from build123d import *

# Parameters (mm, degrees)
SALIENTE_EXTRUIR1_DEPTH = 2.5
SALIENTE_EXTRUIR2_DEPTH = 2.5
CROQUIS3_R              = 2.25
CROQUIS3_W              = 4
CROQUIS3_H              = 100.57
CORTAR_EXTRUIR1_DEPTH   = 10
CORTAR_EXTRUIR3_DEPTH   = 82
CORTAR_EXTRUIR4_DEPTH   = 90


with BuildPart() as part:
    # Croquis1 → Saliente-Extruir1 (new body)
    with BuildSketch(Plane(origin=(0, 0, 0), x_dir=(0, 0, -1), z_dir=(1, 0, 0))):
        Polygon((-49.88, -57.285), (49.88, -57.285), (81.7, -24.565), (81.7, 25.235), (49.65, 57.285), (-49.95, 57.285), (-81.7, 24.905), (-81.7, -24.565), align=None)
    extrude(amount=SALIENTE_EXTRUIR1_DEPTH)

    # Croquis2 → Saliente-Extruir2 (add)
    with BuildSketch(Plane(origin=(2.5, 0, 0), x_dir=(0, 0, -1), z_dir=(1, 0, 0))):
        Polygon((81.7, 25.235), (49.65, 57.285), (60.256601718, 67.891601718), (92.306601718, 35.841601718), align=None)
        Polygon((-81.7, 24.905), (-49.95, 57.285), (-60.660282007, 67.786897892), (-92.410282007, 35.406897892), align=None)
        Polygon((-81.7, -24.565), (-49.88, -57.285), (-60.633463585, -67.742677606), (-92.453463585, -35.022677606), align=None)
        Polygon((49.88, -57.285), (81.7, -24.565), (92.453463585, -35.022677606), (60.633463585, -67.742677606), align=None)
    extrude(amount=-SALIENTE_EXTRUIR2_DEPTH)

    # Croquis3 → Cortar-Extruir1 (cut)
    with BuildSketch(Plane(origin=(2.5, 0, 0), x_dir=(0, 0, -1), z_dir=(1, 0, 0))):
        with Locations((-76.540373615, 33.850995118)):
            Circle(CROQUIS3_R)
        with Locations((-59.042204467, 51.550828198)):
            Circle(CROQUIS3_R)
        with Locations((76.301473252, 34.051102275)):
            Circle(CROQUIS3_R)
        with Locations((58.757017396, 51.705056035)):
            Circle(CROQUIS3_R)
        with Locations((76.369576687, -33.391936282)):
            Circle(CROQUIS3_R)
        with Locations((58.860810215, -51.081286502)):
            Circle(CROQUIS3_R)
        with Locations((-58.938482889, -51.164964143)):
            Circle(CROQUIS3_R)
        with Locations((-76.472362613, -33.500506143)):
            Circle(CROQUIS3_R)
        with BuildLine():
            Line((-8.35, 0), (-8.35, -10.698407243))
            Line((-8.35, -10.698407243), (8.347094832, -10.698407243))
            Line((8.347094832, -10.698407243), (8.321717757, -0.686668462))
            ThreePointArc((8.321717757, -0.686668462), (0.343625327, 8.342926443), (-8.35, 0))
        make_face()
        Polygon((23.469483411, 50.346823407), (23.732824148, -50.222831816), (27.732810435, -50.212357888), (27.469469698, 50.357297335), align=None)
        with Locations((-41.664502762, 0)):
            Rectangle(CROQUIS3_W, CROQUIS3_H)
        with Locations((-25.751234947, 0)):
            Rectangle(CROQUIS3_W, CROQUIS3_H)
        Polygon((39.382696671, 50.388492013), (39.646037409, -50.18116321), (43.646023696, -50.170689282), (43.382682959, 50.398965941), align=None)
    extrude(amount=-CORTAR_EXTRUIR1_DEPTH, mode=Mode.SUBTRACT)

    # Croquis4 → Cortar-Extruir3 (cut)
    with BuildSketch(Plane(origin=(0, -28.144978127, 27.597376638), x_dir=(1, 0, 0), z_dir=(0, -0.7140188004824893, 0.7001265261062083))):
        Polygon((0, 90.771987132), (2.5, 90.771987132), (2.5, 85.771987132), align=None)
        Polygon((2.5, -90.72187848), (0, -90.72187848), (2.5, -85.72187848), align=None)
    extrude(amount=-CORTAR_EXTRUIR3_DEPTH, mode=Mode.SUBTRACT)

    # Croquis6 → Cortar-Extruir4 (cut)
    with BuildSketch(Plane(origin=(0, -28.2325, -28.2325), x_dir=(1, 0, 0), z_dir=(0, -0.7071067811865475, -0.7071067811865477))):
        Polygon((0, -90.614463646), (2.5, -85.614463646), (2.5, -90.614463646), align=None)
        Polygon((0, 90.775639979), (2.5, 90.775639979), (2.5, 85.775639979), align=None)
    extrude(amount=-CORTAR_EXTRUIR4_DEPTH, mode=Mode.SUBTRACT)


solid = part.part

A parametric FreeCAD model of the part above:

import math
import FreeCAD as App
import Part
import Sketcher
from FreeCAD import Vector
Q = App.Units.Quantity


def add_polygon(sketch, points):
    """Adds a closed chain of lines whose ends are joined by coincident constraints."""
    first, n = sketch.GeometryCount, len(points)
    for a, b in zip(points, points[1:] + points[:1]):
        sketch.addGeometry(Part.LineSegment(App.Vector(*a, 0), App.Vector(*b, 0)), False)
    for i in range(n):
        sketch.addConstraint(Sketcher.Constraint("Coincident", first + i, 2, first + (i + 1) % n, 1))

doc = App.newDocument("Part")
body = doc.addObject("PartDesign::Body", "Body")

sketch1 = doc.addObject("Sketcher::SketchObject", "Sketch")
body.addObject(sketch1)
sketch1.AttachmentSupport = (doc.YZ_Plane, [""])
sketch1.MapMode = "FlatFace"
add_polygon(sketch1, [(-57, 50), (-57, -50), (-25, -82), (25, -82), (57, -50), (57, 50), (25, 82), (-25, 82)])
sketch1.addConstraint(Sketcher.Constraint("Vertical", 0))
sketch1.addConstraint(Sketcher.Constraint("Horizontal", 2))
sketch1.addConstraint(Sketcher.Constraint("Vertical", 4))
sketch1.addConstraint(Sketcher.Constraint("Horizontal", 6))
sketch1.addConstraint(Sketcher.Constraint("Symmetric", 1, 2, 6, 2, -1))
sketch1.addConstraint(Sketcher.Constraint("Equal", 1, 7))
sketch1.addConstraint(Sketcher.Constraint("Angle", 3, Q("45 deg")))
sketch1.addConstraint(Sketcher.Constraint("DistanceX", 2, 1, 2, 2, 49.8))
sketch1.addConstraint(Sketcher.Constraint("DistanceY", 4, 1, 4, 2, 99.6))
sketch1.addConstraint(Sketcher.Constraint("DistanceX", 6, 2, 6, 1, 49.47))
sketch1.addConstraint(Sketcher.Constraint("DistanceY", 0, 2, 0, 1, 99.76))
sketch1.addConstraint(Sketcher.Constraint("DistanceY", 1, 2, -1, 1, 81.7))
sketch1.addConstraint(Sketcher.Constraint("DistanceY", 3, 2, -1, 1, 49.65))
sketch1.addConstraint(Sketcher.Constraint("DistanceX", 0, 2, 1, 2, 32.72))
sketch1.addConstraint(Sketcher.Constraint("DistanceX", 0, 2, -1, 1, 57.285))
pad1 = doc.addObject("PartDesign::Pad", "Pad")
body.addObject(pad1)
pad1.Profile = sketch1
pad1.Length = 2.5

sketch2 = doc.addObject("Sketcher::SketchObject", "Sketch001")
body.addObject(sketch2)
sketch2.AttachmentSupport = (doc.YZ_Plane, [""])
sketch2.MapMode = "FlatFace"
sketch2.AttachmentOffset = App.Placement(Vector(0, 0, 2.5), App.Rotation())
add_polygon(sketch2, [(57, -50), (25, -82), (36, -92), (68, -60)])
add_polygon(sketch2, [(25, 82), (57, 50), (68, 61), (35, 92)])
add_polygon(sketch2, [(-57, 50), (-25, 82), (-35, 92), (-68, 61)])
add_polygon(sketch2, [(-25, -82), (-57, -50), (-68, -61), (-35, -92)])
sketch2.addConstraint(Sketcher.Constraint("Symmetric", 11, 2, 12, 2, -1))
sketch2.addConstraint(Sketcher.Constraint("Symmetric", 10, 2, 13, 2, -1))
sketch2.addConstraint(Sketcher.Constraint("Symmetric", 9, 2, 14, 2, -1))
sketch2.addConstraint(Sketcher.Constraint("Symmetric", 8, 2, 15, 2, -1))
sketch2.addConstraint(Sketcher.Constraint("Perpendicular", 0, 1))
sketch2.addConstraint(Sketcher.Constraint("Perpendicular", 1, 2))
sketch2.addConstraint(Sketcher.Constraint("Perpendicular", 2, 3))
sketch2.addConstraint(Sketcher.Constraint("Perpendicular", 4, 5))
sketch2.addConstraint(Sketcher.Constraint("Perpendicular", 5, 6))
sketch2.addConstraint(Sketcher.Constraint("Perpendicular", 6, 7))
sketch2.addConstraint(Sketcher.Constraint("Perpendicular", 8, 9))
sketch2.addConstraint(Sketcher.Constraint("Perpendicular", 9, 10))
sketch2.addConstraint(Sketcher.Constraint("Perpendicular", 10, 11))
sketch2.addConstraint(Sketcher.Constraint("Horizontal", 7, 2, 8, 2))
sketch2.addConstraint(Sketcher.Constraint("Horizontal", 0, 2, 15, 2))
sketch2.addConstraint(Sketcher.Constraint("Vertical", 3, 2, 4, 2))
sketch2.addConstraint(Sketcher.Constraint("Equal", 3, 5))
sketch2.addConstraint(Sketcher.Constraint("Equal", 7, 9))
sketch2.addConstraint(Sketcher.Constraint("Angle", 0, Q("-135 deg")))
sketch2.addConstraint(Sketcher.Constraint("Distance", 1, 15.0))
sketch2.addConstraint(Sketcher.Constraint("DistanceY", 0, 2, -1, 1, 81.7))
sketch2.addConstraint(Sketcher.Constraint("DistanceY", 3, 2, 4, 2, 99.6))
sketch2.addConstraint(Sketcher.Constraint("DistanceX", 15, 2, 0, 2, 49.8))
sketch2.addConstraint(Sketcher.Constraint("DistanceY", 3, 2, -1, 1, 49.65))
sketch2.addConstraint(Sketcher.Constraint("DistanceY", -1, 1, 11, 2, 49.88))
sketch2.addConstraint(Sketcher.Constraint("DistanceX", 6, 2, 5, 2, 32.38))
sketch2.addConstraint(Sketcher.Constraint("DistanceX", 10, 2, 9, 2, 32.72))
sketch2.addConstraint(Sketcher.Constraint("DistanceX", -1, 1, 0, 2, 25.235))
pad2 = doc.addObject("PartDesign::Pad", "Pad001")
body.addObject(pad2)
pad2.Profile = sketch2
pad2.Length = 2.5
pad2.Reversed = True

sketch3 = doc.addObject("Sketcher::SketchObject", "Sketch002")
body.addObject(sketch3)
sketch3.AttachmentSupport = (doc.YZ_Plane, [""])
sketch3.MapMode = "FlatFace"
sketch3.AttachmentOffset = App.Placement(Vector(0, 0, 2.5), App.Rotation())
sketch3.addGeometry(Part.Circle(Vector(33.9, 76.5, 0), Vector(0, 0, 1), 2.2), False)
sketch3.addGeometry(Part.Circle(Vector(51.6, 59, 0), Vector(0, 0, 1), 2.2), False)
sketch3.addGeometry(Part.Circle(Vector(34.1, -76.3, 0), Vector(0, 0, 1), 2.2), False)
sketch3.addGeometry(Part.Circle(Vector(51.7, -58.8, 0), Vector(0, 0, 1), 2.2), False)
sketch3.addGeometry(Part.Circle(Vector(-33.4, -76.4, 0), Vector(0, 0, 1), 2.2), False)
sketch3.addGeometry(Part.Circle(Vector(-51.1, -58.9, 0), Vector(0, 0, 1), 2.2), False)
sketch3.addGeometry(Part.Circle(Vector(-51.2, 58.9, 0), Vector(0, 0, 1), 2.2), False)
sketch3.addGeometry(Part.Circle(Vector(-33.5, 76.5, 0), Vector(0, 0, 1), 2.2), False)
sketch3.addGeometry(Part.LineSegment(Vector(0, 8.3, 0), Vector(-10.7, 8.3, 0)), False)
sketch3.addGeometry(Part.LineSegment(Vector(-10.7, 8.3, 0), Vector(-10.7, -8.3, 0)), False)
sketch3.addGeometry(Part.LineSegment(Vector(-10.7, -8.3, 0), Vector(-0.7, -8.3, 0)), False)
sketch3.addGeometry(Part.ArcOfCircle(Part.Circle(Vector(0, 0, 0), Vector(0, 0, 1), 8.3), math.radians(-95), math.radians(90)), False)
add_polygon(sketch3, [(50.3, -23.5), (-50.2, -23.7), (-50.2, -27.7), (50.4, -27.5)])
add_polygon(sketch3, [(50.3, 43.7), (-50.3, 43.7), (-50.3, 39.7), (50.3, 39.7)])
add_polygon(sketch3, [(50.3, 27.8), (-50.3, 27.8), (-50.3, 23.8), (50.3, 23.8)])
add_polygon(sketch3, [(50.4, -39.4), (-50.2, -39.6), (-50.2, -43.6), (50.4, -43.4)])
sketch3.addConstraint(Sketcher.Constraint("Coincident", 8, 2, 9, 1))
sketch3.addConstraint(Sketcher.Constraint("Coincident", 9, 2, 10, 1))
sketch3.addConstraint(Sketcher.Constraint("Coincident", 10, 2, 11, 1))
sketch3.addConstraint(Sketcher.Constraint("Tangent", 11, 2, 8, 1))
sketch3.addConstraint(Sketcher.Constraint("Horizontal", 8))
sketch3.addConstraint(Sketcher.Constraint("Vertical", 9))
sketch3.addConstraint(Sketcher.Constraint("Horizontal", 16))
sketch3.addConstraint(Sketcher.Constraint("Vertical", 17))
sketch3.addConstraint(Sketcher.Constraint("Horizontal", 18))
sketch3.addConstraint(Sketcher.Constraint("Vertical", 19))
sketch3.addConstraint(Sketcher.Constraint("Horizontal", 20))
sketch3.addConstraint(Sketcher.Constraint("Vertical", 21))
sketch3.addConstraint(Sketcher.Constraint("Horizontal", 22))
sketch3.addConstraint(Sketcher.Constraint("Vertical", 23))
sketch3.addConstraint(Sketcher.Constraint("Coincident", 11, 3, -1, 1))
sketch3.addConstraint(Sketcher.Constraint("Equal", 0, 1))
sketch3.addConstraint(Sketcher.Constraint("Equal", 1, 2))
sketch3.addConstraint(Sketcher.Constraint("Equal", 2, 3))
sketch3.addConstraint(Sketcher.Constraint("Equal", 3, 4))
sketch3.addConstraint(Sketcher.Constraint("Equal", 4, 5))
sketch3.addConstraint(Sketcher.Constraint("Equal", 5, 6))
sketch3.addConstraint(Sketcher.Constraint("Equal", 6, 7))
sketch3.addConstraint(Sketcher.Constraint("Perpendicular", 12, 13))
sketch3.addConstraint(Sketcher.Constraint("Perpendicular", 13, 14))
sketch3.addConstraint(Sketcher.Constraint("Perpendicular", 14, 15))
sketch3.addConstraint(Sketcher.Constraint("Perpendicular", 15, 24))
sketch3.addConstraint(Sketcher.Constraint("Perpendicular", 24, 25))
sketch3.addConstraint(Sketcher.Constraint("Perpendicular", 25, 26))
sketch3.addConstraint(Sketcher.Constraint("Perpendicular", 26, 27))
sketch3.addConstraint(Sketcher.Constraint("Vertical", 17, 2, 20, 2))
sketch3.addConstraint(Sketcher.Constraint("Vertical", 19, 2, 22, 2))
sketch3.addConstraint(Sketcher.Constraint("Equal", 19, 21))
sketch3.addConstraint(Sketcher.Constraint("Equal", 14, 24))
sketch3.addConstraint(Sketcher.Constraint("Equal", 15, 25))
sketch3.addConstraint(Sketcher.Constraint("Diameter", 0, 4.5))
sketch3.addConstraint(Sketcher.Constraint("DistanceY", 17, 2, 17, 1, 4.0))
sketch3.addConstraint(Sketcher.Constraint("Radius", 11, 8.35))
sketch3.addConstraint(Sketcher.Constraint("Distance", 13, 4.0))
sketch3.addConstraint(Sketcher.Constraint("DistanceX", 16, 2, 16, 1, 100.57))
sketch3.addConstraint(Sketcher.Constraint("Distance", 12, 100.57))
sketch3.addConstraint(Sketcher.Constraint("DistanceX", 16, 2, -1, 1, 50.285))
sketch3.addConstraint(Sketcher.Constraint("DistanceY", 5, 3, 13, 2, 31.128))
sketch3.addConstraint(Sketcher.Constraint("DistanceY", 3, 3, 6, 3, 117.6955))
sketch3.addConstraint(Sketcher.Constraint("DistanceX", 7, 3, 0, 3, 67.351501))
sketch3.addConstraint(Sketcher.Constraint("DistanceX", 7, 3, 8, 2, 22.802099))
sketch3.addConstraint(Sketcher.Constraint("DistanceY", 3, 3, 10, 2, 50.4353))
sketch3.addConstraint(Sketcher.Constraint("DistanceY", 18, 2, 1, 3, 19.377702))
sketch3.addConstraint(Sketcher.Constraint("DistanceY", 25, 2, 12, 2, 19.9132))
sketch3.addConstraint(Sketcher.Constraint("Distance", 10, 10.011771))
sketch3.addConstraint(Sketcher.Constraint("DistanceX", 8, 2, 8, 1, 10.698407))
sketch3.addConstraint(Sketcher.Constraint("DistanceY", 9, 2, 9, 1, 16.697095))
sketch3.addConstraint(Sketcher.Constraint("DistanceX", -1, 1, 1, 3, 51.550828))
sketch3.addConstraint(Sketcher.Constraint("DistanceY", 5, 3, -1, 1, 58.86081))
sketch3.addConstraint(Sketcher.Constraint("DistanceX", 12, 2, -1, 1, 50.222832))
sketch3.addConstraint(Sketcher.Constraint("DistanceY", 14, 2, -1, 1, 27.46947))
sketch3.addConstraint(Sketcher.Constraint("DistanceX", 25, 2, -1, 1, 50.170689))
sketch3.addConstraint(Sketcher.Constraint("DistanceY", 1, 3, 0, 3, 17.498169))
sketch3.addConstraint(Sketcher.Constraint("DistanceY", 3, 3, 1, 3, 117.799222))
sketch3.addConstraint(Sketcher.Constraint("DistanceX", 0, 3, 3, 3, 17.854061))
sketch3.addConstraint(Sketcher.Constraint("DistanceX", 4, 3, 2, 3, 67.443039))
sketch3.addConstraint(Sketcher.Constraint("DistanceY", 4, 3, 3, 3, 17.612559))
sketch3.addConstraint(Sketcher.Constraint("DistanceX", 4, 3, 0, 3, 67.242931))
sketch3.addConstraint(Sketcher.Constraint("DistanceX", 5, 3, 4, 3, 17.68935))
sketch3.addConstraint(Sketcher.Constraint("DistanceX", 6, 3, 0, 3, 85.015959))
sketch3.addConstraint(Sketcher.Constraint("DistanceY", 6, 3, 7, 3, 17.53388))
sketch3.addConstraint(Sketcher.Constraint("DistanceY", 2, 3, 15, 2, 52.83199))
sketch3.addConstraint(Sketcher.Constraint("DistanceY", 12, 2, 20, 2, 51.484059))
pocket1 = doc.addObject("PartDesign::Pocket", "Pocket")
body.addObject(pocket1)
pocket1.Profile = sketch3
pocket1.Length = 10

sketch4 = doc.addObject("Sketcher::SketchObject", "Sketch003")
body.addObject(sketch4)
sketch4.Placement = App.Placement(Vector(0, -28.144978, 27.597377), App.Rotation(Vector(1, 0, 0), Vector(0, 0.700126526, 0.7140188), Vector(0, -0.7140188, 0.700126526), "ZXY"))
add_polygon(sketch4, [(2.5, 90.8), (0, 90.8), (2.5, 85.8)])
add_polygon(sketch4, [(0, -90.7), (2.5, -90.7), (2.5, -85.7)])
sketch4.addConstraint(Sketcher.Constraint("Horizontal", 0))
sketch4.addConstraint(Sketcher.Constraint("Vertical", 2))
sketch4.addConstraint(Sketcher.Constraint("Horizontal", 3))
sketch4.addConstraint(Sketcher.Constraint("Vertical", 4))
sketch4.addConstraint(Sketcher.Constraint("PointOnObject", 0, 2, -2))
sketch4.addConstraint(Sketcher.Constraint("PointOnObject", 5, 2, -2))
sketch4.addConstraint(Sketcher.Constraint("Vertical", 2, 2, 3, 2))
sketch4.addConstraint(Sketcher.Constraint("Equal", 2, 4))
sketch4.addConstraint(Sketcher.Constraint("DistanceY", 2, 1, 2, 2, 5.0))
sketch4.addConstraint(Sketcher.Constraint("DistanceX", 0, 2, 0, 1, 2.5))
sketch4.addConstraint(Sketcher.Constraint("DistanceY", 3, 2, -1, 1, 90.721878))
sketch4.addConstraint(Sketcher.Constraint("DistanceY", -1, 1, 0, 2, 90.771987))
pocket2 = doc.addObject("PartDesign::Pocket", "Pocket001")
body.addObject(pocket2)
pocket2.Profile = sketch4
pocket2.Length = 82

sketch5 = doc.addObject("Sketcher::SketchObject", "Sketch004")
body.addObject(sketch5)
sketch5.Placement = App.Placement(Vector(0, -28.2325, -28.2325), App.Rotation(Vector(1, 0, 0), Vector(0, -0.707106781, 0.707106781), Vector(0, -0.707106781, -0.707106781), "ZXY"))
add_polygon(sketch5, [(2.5, -85.6), (0, -90.6), (2.5, -90.6)])
add_polygon(sketch5, [(2.5, 90.8), (0, 90.8), (2.5, 85.8)])
sketch5.addConstraint(Sketcher.Constraint("Horizontal", 1))
sketch5.addConstraint(Sketcher.Constraint("Vertical", 2))
sketch5.addConstraint(Sketcher.Constraint("Horizontal", 3))
sketch5.addConstraint(Sketcher.Constraint("Vertical", 5))
sketch5.addConstraint(Sketcher.Constraint("PointOnObject", 0, 2, -2))
sketch5.addConstraint(Sketcher.Constraint("PointOnObject", 3, 2, -2))
sketch5.addConstraint(Sketcher.Constraint("Vertical", 2, 2, 4, 2))
sketch5.addConstraint(Sketcher.Constraint("Equal", 2, 5))
sketch5.addConstraint(Sketcher.Constraint("DistanceY", 2, 1, 2, 2, 5.0))
sketch5.addConstraint(Sketcher.Constraint("DistanceX", 1, 1, 1, 2, 2.5))
sketch5.addConstraint(Sketcher.Constraint("DistanceY", -1, 1, 3, 2, 90.77564))
sketch5.addConstraint(Sketcher.Constraint("DistanceY", 0, 2, -1, 1, 90.614464))
pocket3 = doc.addObject("PartDesign::Pocket", "Pocket002")
body.addObject(pocket3)
pocket3.Profile = sketch5
pocket3.Length = 90

doc.recompute()
